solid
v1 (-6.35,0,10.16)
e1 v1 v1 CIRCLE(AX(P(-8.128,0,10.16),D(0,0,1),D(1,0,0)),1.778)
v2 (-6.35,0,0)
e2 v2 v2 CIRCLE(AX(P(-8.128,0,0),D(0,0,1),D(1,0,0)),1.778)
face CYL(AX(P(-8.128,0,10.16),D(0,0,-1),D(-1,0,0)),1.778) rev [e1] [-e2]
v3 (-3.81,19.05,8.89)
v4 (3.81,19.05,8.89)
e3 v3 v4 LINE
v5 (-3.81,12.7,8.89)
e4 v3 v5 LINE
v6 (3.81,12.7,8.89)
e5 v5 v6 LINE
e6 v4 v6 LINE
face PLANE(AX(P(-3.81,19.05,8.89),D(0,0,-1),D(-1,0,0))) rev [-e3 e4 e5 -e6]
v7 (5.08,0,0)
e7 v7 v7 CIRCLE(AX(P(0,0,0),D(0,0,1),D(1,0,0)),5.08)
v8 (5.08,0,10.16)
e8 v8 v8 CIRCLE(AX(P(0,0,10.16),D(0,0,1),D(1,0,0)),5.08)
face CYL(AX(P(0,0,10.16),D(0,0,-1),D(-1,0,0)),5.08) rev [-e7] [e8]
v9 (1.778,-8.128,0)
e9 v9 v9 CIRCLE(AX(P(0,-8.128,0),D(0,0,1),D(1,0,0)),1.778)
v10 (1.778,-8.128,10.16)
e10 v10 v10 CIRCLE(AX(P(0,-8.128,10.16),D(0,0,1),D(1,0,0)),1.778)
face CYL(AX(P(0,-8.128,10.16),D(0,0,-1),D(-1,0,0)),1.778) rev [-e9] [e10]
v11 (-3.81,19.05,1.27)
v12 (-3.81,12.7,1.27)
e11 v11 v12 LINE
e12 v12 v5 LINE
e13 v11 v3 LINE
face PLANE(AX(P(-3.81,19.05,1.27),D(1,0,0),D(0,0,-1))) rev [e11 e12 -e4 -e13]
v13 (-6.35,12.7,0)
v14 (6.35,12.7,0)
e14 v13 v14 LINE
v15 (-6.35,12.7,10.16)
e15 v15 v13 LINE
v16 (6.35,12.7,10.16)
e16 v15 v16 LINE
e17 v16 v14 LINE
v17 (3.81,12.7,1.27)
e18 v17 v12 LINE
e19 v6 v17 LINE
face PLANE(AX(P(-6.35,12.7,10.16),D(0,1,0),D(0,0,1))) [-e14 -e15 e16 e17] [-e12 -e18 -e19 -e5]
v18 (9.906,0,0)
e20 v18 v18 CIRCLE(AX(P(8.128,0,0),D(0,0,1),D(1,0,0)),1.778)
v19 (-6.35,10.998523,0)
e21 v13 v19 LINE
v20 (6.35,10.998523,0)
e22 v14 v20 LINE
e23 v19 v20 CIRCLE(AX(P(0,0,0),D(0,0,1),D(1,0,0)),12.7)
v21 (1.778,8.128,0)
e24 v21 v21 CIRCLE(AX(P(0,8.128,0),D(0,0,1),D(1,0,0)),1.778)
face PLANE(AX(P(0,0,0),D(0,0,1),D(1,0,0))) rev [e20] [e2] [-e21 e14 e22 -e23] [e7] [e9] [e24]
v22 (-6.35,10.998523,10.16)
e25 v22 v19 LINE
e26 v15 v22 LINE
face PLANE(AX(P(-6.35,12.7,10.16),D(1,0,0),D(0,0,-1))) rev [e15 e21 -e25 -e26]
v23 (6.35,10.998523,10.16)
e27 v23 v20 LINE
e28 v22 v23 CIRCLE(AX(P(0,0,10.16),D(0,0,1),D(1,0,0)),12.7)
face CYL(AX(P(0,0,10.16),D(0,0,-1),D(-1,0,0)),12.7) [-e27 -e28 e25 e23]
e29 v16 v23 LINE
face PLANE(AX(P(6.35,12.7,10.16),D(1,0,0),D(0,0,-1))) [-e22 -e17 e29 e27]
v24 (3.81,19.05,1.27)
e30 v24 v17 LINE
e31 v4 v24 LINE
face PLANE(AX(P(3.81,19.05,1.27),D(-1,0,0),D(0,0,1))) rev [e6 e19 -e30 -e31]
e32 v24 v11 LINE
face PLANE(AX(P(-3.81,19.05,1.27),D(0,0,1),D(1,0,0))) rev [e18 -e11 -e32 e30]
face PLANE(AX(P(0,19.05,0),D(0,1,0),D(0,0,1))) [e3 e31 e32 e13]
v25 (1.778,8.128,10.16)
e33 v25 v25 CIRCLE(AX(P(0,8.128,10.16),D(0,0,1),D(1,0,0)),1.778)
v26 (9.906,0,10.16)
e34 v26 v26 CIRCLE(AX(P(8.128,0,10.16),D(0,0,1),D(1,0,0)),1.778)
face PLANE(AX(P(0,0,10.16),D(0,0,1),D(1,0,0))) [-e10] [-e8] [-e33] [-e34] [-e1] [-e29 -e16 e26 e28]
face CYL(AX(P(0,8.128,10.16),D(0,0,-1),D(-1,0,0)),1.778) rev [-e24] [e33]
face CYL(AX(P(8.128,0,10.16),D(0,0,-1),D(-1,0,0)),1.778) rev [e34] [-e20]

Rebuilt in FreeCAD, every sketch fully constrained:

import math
import FreeCAD as App
import Part
import Sketcher
Q = App.Units.Quantity


def add_polygon(sketch, points):
    """Adds a closed chain of lines whose ends are joined by coincident constraints."""
    first, n = sketch.GeometryCount, len(points)
    for a, b in zip(points, points[1:] + points[:1]):
        sketch.addGeometry(Part.LineSegment(App.Vector(*a, 0), App.Vector(*b, 0)), False)
    for i in range(n):
        sketch.addConstraint(Sketcher.Constraint("Coincident", first + i, 2, first + (i + 1) % n, 1))

doc = App.newDocument("Part")
body = doc.addObject("PartDesign::Body", "Body")

sketch1 = body.newObject("Sketcher::SketchObject", "Sketch")
sketch1.AttachmentSupport = (doc.getObject("XY_Plane"), [""])
sketch1.MapMode = "FlatFace"
sketch1.addGeometry(Part.LineSegment(App.Vector(-6.3, 12.7, 0), App.Vector(-6.3, 11, 0)), False)
sketch1.addGeometry(Part.ArcOfCircle(Part.Circle(App.Vector(0, 0, 0), App.Vector(0, 0, 1), 12.7), math.radians(120), math.radians(420)), False)
sketch1.addGeometry(Part.LineSegment(App.Vector(6.3, 11, 0), App.Vector(6.3, 12.7, 0)), False)
sketch1.addGeometry(Part.LineSegment(App.Vector(6.3, 12.7, 0), App.Vector(-6.3, 12.7, 0)), False)
sketch1.addGeometry(Part.Circle(App.Vector(0, -8.1, 0), App.Vector(0, 0, 1), 1.8), False)
sketch1.addGeometry(Part.Circle(App.Vector(-8.1, 0, 0), App.Vector(0, 0, 1), 1.8), False)
sketch1.addGeometry(Part.Circle(App.Vector(0, 0, 0), App.Vector(0, 0, 1), 5.1), False)
sketch1.addGeometry(Part.Circle(App.Vector(8.1, 0, 0), App.Vector(0, 0, 1), 1.8), False)
sketch1.addGeometry(Part.Circle(App.Vector(0, 8.1, 0), App.Vector(0, 0, 1), 1.8), False)
sketch1.addConstraint(Sketcher.Constraint("Coincident", 0, 2, 1, 1))
sketch1.addConstraint(Sketcher.Constraint("Coincident", 1, 2, 2, 1))
sketch1.addConstraint(Sketcher.Constraint("Coincident", 2, 2, 3, 1))
sketch1.addConstraint(Sketcher.Constraint("Coincident", 3, 2, 0, 1))
sketch1.addConstraint(Sketcher.Constraint("Vertical", 0))
sketch1.addConstraint(Sketcher.Constraint("Vertical", 2))
sketch1.addConstraint(Sketcher.Constraint("Horizontal", 3))
sketch1.addConstraint(Sketcher.Constraint("Coincident", 1, 3, -1, 1))
sketch1.addConstraint(Sketcher.Constraint("Coincident", 6, 3, -1, 1))
sketch1.addConstraint(Sketcher.Constraint("Equal", 4, 5))
sketch1.addConstraint(Sketcher.Constraint("Equal", 5, 7))
sketch1.addConstraint(Sketcher.Constraint("Equal", 7, 8))
sketch1.addConstraint(Sketcher.Constraint("Symmetric", 5, 3, 7, 3, -1, 1))
sketch1.addConstraint(Sketcher.Constraint("Symmetric", 4, 3, 8, 3, -1, 1))
sketch1.addConstraint(Sketcher.Constraint("PointOnObject", 4, 3, -2))
sketch1.addConstraint(Sketcher.Constraint("PointOnObject", 5, 3, -1))
sketch1.addConstraint(Sketcher.Constraint("Horizontal", 0, 2, 1, 2))
sketch1.addConstraint(Sketcher.Constraint("Diameter", 6, Q("0.4 in")))
sketch1.addConstraint(Sketcher.Constraint("Radius", 1, Q("0.5 in")))
sketch1.addConstraint(Sketcher.Constraint("Diameter", 4, Q("0.14 in")))
sketch1.addConstraint(Sketcher.Constraint("DistanceX", 3, 2, 3, 1, Q("0.5 in")))
sketch1.addConstraint(Sketcher.Constraint("DistanceY", -1, 1, 2, 2, Q("0.5 in")))
sketch1.addConstraint(Sketcher.Constraint("DistanceY", 4, 3, -1, 1, Q("0.32 in")))
sketch1.addConstraint(Sketcher.Constraint("DistanceX", 5, 3, -1, 1, Q("0.32 in")))
pad1 = body.newObject("PartDesign::Pad", "Pad")
pad1.Profile = sketch1
pad1.Length = Q("0.4 in")

sketch2 = body.newObject("Sketcher::SketchObject", "Sketch001")
sketch2.AttachmentSupport = (doc.getObject("XZ_Plane"), [""])
sketch2.MapMode = "FlatFace"
sketch2.AttachmentOffset = App.Placement(App.Vector(0, 0, -0.5 * 25.4), App.Rotation())
add_polygon(sketch2, [(-4, 1), (-4, 9), (4, 9), (4, 1)])
sketch2.addConstraint(Sketcher.Constraint("Vertical", 0))
sketch2.addConstraint(Sketcher.Constraint("Horizontal", 1))
sketch2.addConstraint(Sketcher.Constraint("Vertical", 2))
sketch2.addConstraint(Sketcher.Constraint("Horizontal", 3))
sketch2.addConstraint(Sketcher.Constraint("Equal", 3, 0))
sketch2.addConstraint(Sketcher.Constraint("DistanceX", 1, 1, 1, 2, Q("0.3 in")))
sketch2.addConstraint(Sketcher.Constraint("DistanceX", 0, 2, -1, 1, Q("0.15 in")))
sketch2.addConstraint(Sketcher.Constraint("DistanceY", -1, 1, 0, 2, Q("0.35 in")))
pad2 = body.newObject("PartDesign::Pad", "Pad001")
pad2.Profile = sketch2
pad2.Length = Q("0.25 in")
pad2.Reversed = True

doc.recompute()
